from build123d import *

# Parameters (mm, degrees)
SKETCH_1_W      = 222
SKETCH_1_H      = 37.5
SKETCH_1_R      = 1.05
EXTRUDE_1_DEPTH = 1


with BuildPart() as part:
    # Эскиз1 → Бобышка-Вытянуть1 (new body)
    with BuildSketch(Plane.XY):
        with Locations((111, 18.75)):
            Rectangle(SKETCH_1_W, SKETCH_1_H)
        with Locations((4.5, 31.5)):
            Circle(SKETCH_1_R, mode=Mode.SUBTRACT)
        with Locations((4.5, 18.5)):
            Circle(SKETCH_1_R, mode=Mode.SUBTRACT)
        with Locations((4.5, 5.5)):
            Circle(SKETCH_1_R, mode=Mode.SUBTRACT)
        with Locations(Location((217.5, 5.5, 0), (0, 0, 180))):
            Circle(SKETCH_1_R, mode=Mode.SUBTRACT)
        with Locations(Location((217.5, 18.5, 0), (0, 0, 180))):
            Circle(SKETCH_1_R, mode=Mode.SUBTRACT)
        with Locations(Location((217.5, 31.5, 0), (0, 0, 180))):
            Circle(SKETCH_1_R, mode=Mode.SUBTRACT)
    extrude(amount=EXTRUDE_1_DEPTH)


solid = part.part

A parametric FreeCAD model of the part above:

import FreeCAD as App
import Part
import Sketcher
from FreeCAD import Vector

doc = App.newDocument("Part")
body = doc.addObject("PartDesign::Body", "Body")

# Sketch on XY plane
sketch1 = body.newObject("Sketcher::SketchObject", "Sketch")
sketch1.AttachmentSupport = (doc.getObject("XY_Plane"), [""])
sketch1.MapMode = "FlatFace"
sketch1.addGeometry([
    Part.LineSegment(Vector(0, 37.5, 0), Vector(0, 0, 0)),  # 0
    Part.LineSegment(Vector(0, 0, 0), Vector(222, 0, 0)),  # 1
    Part.LineSegment(Vector(222, 0, 0), Vector(222, 37.5, 0)),  # 2
    Part.LineSegment(Vector(222, 37.5, 0), Vector(0, 37.5, 0)),  # 3
    Part.Circle(Vector(4.5, 5.5, 0), Vector(0, 0, 1), 1.1),  # 4
    Part.Circle(Vector(217.5, 5.5, 0), Vector(0, 0, 1), 1.1),  # 5
    Part.Circle(Vector(4.5, 18.5, 0), Vector(0, 0, 1), 1.1),  # 6
    Part.Circle(Vector(4.5, 31.5, 0), Vector(0, 0, 1), 1.1),  # 7
    Part.Circle(Vector(217.5, 18.5, 0), Vector(0, 0, 1), 1.1),  # 8
    Part.Circle(Vector(217.5, 31.5, 0), Vector(0, 0, 1), 1.1),  # 9
], False)
sketch1.addConstraint([
    Sketcher.Constraint("Coincident", 0, 2, 1, 1),
    Sketcher.Constraint("Coincident", 1, 2, 2, 1),
    Sketcher.Constraint("Coincident", 2, 2, 3, 1),
    Sketcher.Constraint("Coincident", 3, 2, 0, 1),
    Sketcher.Constraint("Vertical", 0),
    Sketcher.Constraint("Horizontal", 1),
    Sketcher.Constraint("Vertical", 2),
    Sketcher.Constraint("Horizontal", 3),
    Sketcher.Constraint("Coincident", 0, 2, -1, 1),
    Sketcher.Constraint("Equal", 4, 5),
    Sketcher.Constraint("Equal", 5, 6),
    Sketcher.Constraint("Equal", 6, 7),
    Sketcher.Constraint("Equal", 7, 8),
    Sketcher.Constraint("Equal", 8, 9),
    Sketcher.Constraint("Horizontal", 4, 3, 5, 3),
    Sketcher.Constraint("Horizontal", 6, 3, 8, 3),
    Sketcher.Constraint("Horizontal", 7, 3, 9, 3),
    Sketcher.Constraint("Vertical", 4, 3, 6, 3),
    Sketcher.Constraint("Vertical", 6, 3, 7, 3),
    Sketcher.Constraint("Vertical", 5, 3, 8, 3),
    Sketcher.Constraint("Vertical", 8, 3, 9, 3),
    Sketcher.Constraint("Diameter", 4, 2.1),
    Sketcher.Constraint("DistanceX", 1, 1, 1, 2, 222.0),
    Sketcher.Constraint("DistanceY", 0, 2, 0, 1, 37.5),
    Sketcher.Constraint("DistanceX", 4, 3, 5, 3, 213.0),
    Sketcher.Constraint("DistanceY", 4, 3, 6, 3, 13.0),
    Sketcher.Constraint("DistanceY", 6, 3, 7, 3, 13.0),
    Sketcher.Constraint("DistanceY", 9, 3, 2, 2, 6.0),
    Sketcher.Constraint("DistanceX", -1, 1, 4, 3, 4.5),
])
pad1 = body.newObject("PartDesign::Pad", "Pad")
pad1.Profile = sketch1
pad1.Length = 1

doc.recompute()
